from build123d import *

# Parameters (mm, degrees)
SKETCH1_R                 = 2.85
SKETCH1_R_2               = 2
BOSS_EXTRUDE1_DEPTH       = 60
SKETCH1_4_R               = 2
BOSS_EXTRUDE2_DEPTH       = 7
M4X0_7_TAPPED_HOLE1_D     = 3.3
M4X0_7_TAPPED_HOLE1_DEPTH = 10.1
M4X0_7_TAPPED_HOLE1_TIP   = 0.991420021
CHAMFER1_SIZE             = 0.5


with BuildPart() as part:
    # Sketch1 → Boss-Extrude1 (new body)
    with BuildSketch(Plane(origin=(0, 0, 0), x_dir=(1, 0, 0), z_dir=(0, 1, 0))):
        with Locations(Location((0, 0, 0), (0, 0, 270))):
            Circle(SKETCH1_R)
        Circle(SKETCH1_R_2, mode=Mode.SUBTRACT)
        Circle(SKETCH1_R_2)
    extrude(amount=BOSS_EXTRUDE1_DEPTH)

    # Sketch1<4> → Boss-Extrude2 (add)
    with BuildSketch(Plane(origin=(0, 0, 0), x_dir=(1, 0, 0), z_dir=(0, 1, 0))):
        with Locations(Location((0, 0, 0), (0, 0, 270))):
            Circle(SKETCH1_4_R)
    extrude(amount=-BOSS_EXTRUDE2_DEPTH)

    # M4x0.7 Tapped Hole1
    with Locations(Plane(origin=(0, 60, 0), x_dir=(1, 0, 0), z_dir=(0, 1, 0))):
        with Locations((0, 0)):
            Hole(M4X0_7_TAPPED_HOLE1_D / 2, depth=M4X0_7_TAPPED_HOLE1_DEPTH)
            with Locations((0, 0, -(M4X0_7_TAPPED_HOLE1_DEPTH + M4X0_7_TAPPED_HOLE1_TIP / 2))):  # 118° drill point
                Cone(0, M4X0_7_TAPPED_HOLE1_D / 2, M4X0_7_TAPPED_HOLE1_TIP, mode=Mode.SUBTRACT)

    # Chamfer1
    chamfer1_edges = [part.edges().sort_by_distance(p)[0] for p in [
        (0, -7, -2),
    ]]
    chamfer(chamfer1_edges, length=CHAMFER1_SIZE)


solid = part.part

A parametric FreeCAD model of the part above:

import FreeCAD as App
import Part
import Sketcher

V = App.Vector


def edges_at(feature, points):
    """Names of the edges that pass closest to the given points."""
    edges = feature.Shape.Edges
    near = lambda p: min(range(len(edges)), key=lambda i: edges[i].distToShape(Part.Vertex(*p))[0])
    return sorted({f"Edge{near(p) + 1}" for p in points})

doc = App.newDocument("Part")
body = doc.addObject("PartDesign::Body", "Body")

# Sketch on XZ plane
sketch1 = body.newObject("Sketcher::SketchObject", "Sketch")
sketch1.AttachmentSupport = (doc.getObject("XZ_Plane"), [""])
sketch1.MapMode = "FlatFace"
sketch1.addGeometry(Part.Circle(V(0, 0, 0), V(0, 0, 1), 2.85), False)
sketch1.addConstraint(Sketcher.Constraint("Coincident", 0, 3, -1, 1))
sketch1.addConstraint(Sketcher.Constraint("Diameter", 0, 5.7))
pad1 = body.newObject("PartDesign::Pad", "Pad")
pad1.Profile = sketch1
pad1.Length = 60
pad1.Reversed = True

# Sketch on XZ plane
sketch2 = body.newObject("Sketcher::SketchObject", "Sketch001")
sketch2.AttachmentSupport = (doc.getObject("XZ_Plane"), [""])
sketch2.MapMode = "FlatFace"
sketch2.addGeometry(Part.Circle(V(0, 0, 0), V(0, 0, 1), 2), False)
sketch2.addConstraint(Sketcher.Constraint("Coincident", 0, 3, -1, 1))
sketch2.addConstraint(Sketcher.Constraint("Diameter", 0, 4.0))
pad2 = body.newObject("PartDesign::Pad", "Pad001")
pad2.Profile = sketch2
pad2.Length = 7

# Sketch on XZ plane
sketch3 = body.newObject("Sketcher::SketchObject", "Sketch002")
sketch3.AttachmentSupport = (doc.getObject("XZ_Plane"), [""])
sketch3.MapMode = "FlatFace"
sketch3.AttachmentOffset = App.Placement(V(0, 0, -60), App.Rotation())
sketch3.addGeometry(Part.Circle(V(0, 0, 0), V(0, 0, 1), 1.65), False)
sketch3.addConstraint(Sketcher.Constraint("Coincident", 0, 3, -1, 1))
sketch3.addConstraint(Sketcher.Constraint("Diameter", 0, 3.3))
doc.recompute()
hole = body.newObject("PartDesign::Hole", "Hole")
hole.Profile = sketch3
hole.ThreadType = "None"
hole.Diameter = 3.3
hole.DepthType = "Dimension"
hole.Depth = 10.1
hole.DrillPoint = "Angled"
hole.DrillPointAngle = 118
hole.Reversed = True
doc.recompute()

chamfer = body.newObject("PartDesign::Chamfer", "Chamfer")
chamfer.Base = (hole, edges_at(hole, [(0, -7, -2)]))
chamfer.Size = 0.5

doc.recompute()
